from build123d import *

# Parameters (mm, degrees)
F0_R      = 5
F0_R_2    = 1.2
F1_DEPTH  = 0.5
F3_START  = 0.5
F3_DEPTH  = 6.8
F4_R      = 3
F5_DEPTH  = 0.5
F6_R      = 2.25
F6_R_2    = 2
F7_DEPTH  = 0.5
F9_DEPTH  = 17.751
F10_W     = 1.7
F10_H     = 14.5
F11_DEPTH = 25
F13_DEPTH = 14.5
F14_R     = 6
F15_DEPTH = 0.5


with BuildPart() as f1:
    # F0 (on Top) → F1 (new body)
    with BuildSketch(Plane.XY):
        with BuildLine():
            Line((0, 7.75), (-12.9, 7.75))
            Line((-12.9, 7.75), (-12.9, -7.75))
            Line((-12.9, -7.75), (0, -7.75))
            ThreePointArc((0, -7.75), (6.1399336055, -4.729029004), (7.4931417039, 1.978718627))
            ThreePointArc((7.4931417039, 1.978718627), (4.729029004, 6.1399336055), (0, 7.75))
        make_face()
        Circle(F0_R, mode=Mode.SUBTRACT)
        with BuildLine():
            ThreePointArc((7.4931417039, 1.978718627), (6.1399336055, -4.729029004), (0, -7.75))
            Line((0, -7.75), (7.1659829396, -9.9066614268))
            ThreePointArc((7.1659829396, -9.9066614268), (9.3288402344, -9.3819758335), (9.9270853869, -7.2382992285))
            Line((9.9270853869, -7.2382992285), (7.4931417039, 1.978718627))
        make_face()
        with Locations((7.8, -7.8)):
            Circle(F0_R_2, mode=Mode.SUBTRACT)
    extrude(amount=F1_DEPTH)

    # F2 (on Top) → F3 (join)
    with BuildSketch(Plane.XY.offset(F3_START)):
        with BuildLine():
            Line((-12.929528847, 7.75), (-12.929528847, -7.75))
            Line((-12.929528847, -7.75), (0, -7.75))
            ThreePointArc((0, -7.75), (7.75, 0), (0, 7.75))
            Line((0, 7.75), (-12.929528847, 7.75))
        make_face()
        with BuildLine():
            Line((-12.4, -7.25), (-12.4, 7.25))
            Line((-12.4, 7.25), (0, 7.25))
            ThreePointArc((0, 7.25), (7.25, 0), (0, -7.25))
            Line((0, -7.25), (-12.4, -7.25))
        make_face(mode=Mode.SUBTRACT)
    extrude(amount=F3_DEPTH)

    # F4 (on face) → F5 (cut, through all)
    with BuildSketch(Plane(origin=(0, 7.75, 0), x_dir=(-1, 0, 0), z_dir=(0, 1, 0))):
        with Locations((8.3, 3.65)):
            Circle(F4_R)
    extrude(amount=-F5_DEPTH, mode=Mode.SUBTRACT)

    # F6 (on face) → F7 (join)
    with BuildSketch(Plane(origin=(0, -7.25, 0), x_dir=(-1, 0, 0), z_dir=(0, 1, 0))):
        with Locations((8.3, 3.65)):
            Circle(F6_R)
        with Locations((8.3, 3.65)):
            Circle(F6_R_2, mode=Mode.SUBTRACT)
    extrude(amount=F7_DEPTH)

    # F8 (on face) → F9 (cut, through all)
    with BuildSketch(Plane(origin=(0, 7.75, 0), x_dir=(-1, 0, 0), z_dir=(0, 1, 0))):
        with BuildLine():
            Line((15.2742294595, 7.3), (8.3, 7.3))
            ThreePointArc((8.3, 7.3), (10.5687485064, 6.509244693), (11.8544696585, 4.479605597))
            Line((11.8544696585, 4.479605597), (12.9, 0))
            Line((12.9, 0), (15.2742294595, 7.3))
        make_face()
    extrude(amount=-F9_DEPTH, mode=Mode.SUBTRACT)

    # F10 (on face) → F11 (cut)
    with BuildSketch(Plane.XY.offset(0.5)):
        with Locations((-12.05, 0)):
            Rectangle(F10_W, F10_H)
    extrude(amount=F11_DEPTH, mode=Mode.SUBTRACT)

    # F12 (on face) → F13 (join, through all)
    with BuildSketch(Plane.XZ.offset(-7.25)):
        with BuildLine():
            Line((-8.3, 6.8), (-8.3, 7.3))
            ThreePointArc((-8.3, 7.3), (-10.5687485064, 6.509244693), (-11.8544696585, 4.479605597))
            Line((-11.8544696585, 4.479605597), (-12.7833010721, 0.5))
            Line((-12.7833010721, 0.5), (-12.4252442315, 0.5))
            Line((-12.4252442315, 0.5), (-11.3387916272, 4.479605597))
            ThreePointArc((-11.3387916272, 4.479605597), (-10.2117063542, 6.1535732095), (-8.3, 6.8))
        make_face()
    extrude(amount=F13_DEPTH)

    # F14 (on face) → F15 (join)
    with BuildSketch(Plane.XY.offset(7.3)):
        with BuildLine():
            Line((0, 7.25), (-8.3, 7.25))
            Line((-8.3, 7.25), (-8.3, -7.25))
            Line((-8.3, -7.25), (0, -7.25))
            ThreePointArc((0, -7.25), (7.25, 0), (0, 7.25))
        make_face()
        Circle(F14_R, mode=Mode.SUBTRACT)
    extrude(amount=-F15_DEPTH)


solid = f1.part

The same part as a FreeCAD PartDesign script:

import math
import FreeCAD as App
import Part
import Sketcher
Q = App.Units.Quantity


def add_polygon(sketch, points):
    """Adds a closed chain of lines whose ends are joined by coincident constraints."""
    first, n = sketch.GeometryCount, len(points)
    for a, b in zip(points, points[1:] + points[:1]):
        sketch.addGeometry(Part.LineSegment(App.Vector(*a, 0), App.Vector(*b, 0)), False)
    for i in range(n):
        sketch.addConstraint(Sketcher.Constraint("Coincident", first + i, 2, first + (i + 1) % n, 1))

doc = App.newDocument("Part")
params = doc.addObject("Spreadsheet::Sheet", "Params")
for row, (alias, value) in enumerate([
    ("sketch1_diameter", "10 mm"),
    ("sketch1_diameter2", "2.4 mm"),
    ("sketch1_radius", "2.2 mm"),
    ("sketch1_radius2", "7.75 mm"),
    ("sketch1_width", "12.9 mm"),
    ("pad1_length", "0.5 mm"),
    ("sketch2_radius", "7.75 mm"),
    ("sketch2_radius2", "7.25 mm"),
    ("sketch2_width", "12.4 mm"),
    ("pad2_length", "6.8 mm"),
    ("sketch3_diameter", "6 mm"),
    ("pocket1_length", "0.5 mm"),
    ("sketch4_diameter", "4 mm"),
    ("sketch4_diameter2", "4.5 mm"),
    ("pad3_length", "0.5 mm"),
    ("sketch5_radius", "3.65 mm"),
    ("sketch5_length", "4.6 mm"),
    ("sketch6_width", "1.7 mm"),
    ("sketch6_height", "14.5 mm"),
    ("pocket3_length", "25 mm"),
    ("sketch7_radius", "3.65 mm"),
    ("sketch7_radius2", "3.15 mm"),
    ("sketch8_diameter", "12 mm"),
    ("sketch8_radius", "7.25 mm"),
    ("sketch8_width", "8.3 mm"),
    ("pad5_length", "0.5 mm"),
], start=1):
    params.set(f"A{row}", alias)
    params.set(f"B{row}", "=" + value)
    params.setAlias(f"B{row}", alias)

body = doc.addObject("PartDesign::Body", "Body")

# Sketch on XY plane
sketch1 = doc.addObject("Sketcher::SketchObject", "Sketch")
body.addObject(sketch1)
sketch1.AttachmentSupport = (doc.XY_Plane, [""])
sketch1.MapMode = "FlatFace"
sketch1.addGeometry(Part.LineSegment(App.Vector(0, 7.75, 0), App.Vector(-12.9, 7.75, 0)), False)
sketch1.addGeometry(Part.LineSegment(App.Vector(-12.9, 7.75, 0), App.Vector(-12.9, -7.75, 0)), False)
sketch1.addGeometry(Part.LineSegment(App.Vector(-12.9, -7.75, 0), App.Vector(0, -7.75, 0)), False)
sketch1.addGeometry(Part.LineSegment(App.Vector(0, -7.75, 0), App.Vector(7.165983, -9.906661, 0)), False)
sketch1.addGeometry(Part.ArcOfCircle(Part.Circle(App.Vector(7.8, -7.8, 0), App.Vector(0, 0, 1), 2.2), math.radians(-106.749599), math.radians(14.792461)), False)
sketch1.addGeometry(Part.LineSegment(App.Vector(9.927085, -7.238299, 0), App.Vector(7.493142, 1.978719, 0)), False)
sketch1.addGeometry(Part.ArcOfCircle(Part.Circle(App.Vector(0, 0, 0), App.Vector(0, 0, 1), 7.75), math.radians(14.792461), math.radians(90)), False)
sketch1.addGeometry(Part.Circle(App.Vector(7.8, -7.8, 0), App.Vector(0, 0, 1), 1.2), False)
sketch1.addGeometry(Part.Circle(App.Vector(0, 0, 0), App.Vector(0, 0, 1), 5), False)
sketch1.addConstraint(Sketcher.Constraint("Coincident", 0, 2, 1, 1))
sketch1.addConstraint(Sketcher.Constraint("Coincident", 1, 2, 2, 1))
sketch1.addConstraint(Sketcher.Constraint("Coincident", 2, 2, 3, 1))
sketch1.addConstraint(Sketcher.Constraint("Tangent", 3, 2, 4, 1))
sketch1.addConstraint(Sketcher.Constraint("Tangent", 4, 2, 5, 1))
sketch1.addConstraint(Sketcher.Constraint("Tangent", 5, 2, 6, 1))
sketch1.addConstraint(Sketcher.Constraint("Tangent", 6, 2, 0, 1))
sketch1.addConstraint(Sketcher.Constraint("Horizontal", 0))
sketch1.addConstraint(Sketcher.Constraint("Vertical", 1))
sketch1.addConstraint(Sketcher.Constraint("Horizontal", 2))
sketch1.addConstraint(Sketcher.Constraint("Coincident", 6, 3, -1, 1))
sketch1.addConstraint(Sketcher.Constraint("Coincident", 8, 3, -1, 1))
sketch1.addConstraint(Sketcher.Constraint("Coincident", 7, 3, 4, 3))
sketch1.addConstraint(Sketcher.Constraint("Symmetric", 2, 2, 6, 2, -1, 1))
sketch1.addConstraint(Sketcher.Constraint("Diameter", 8, Q("10 mm")))
sketch1.addConstraint(Sketcher.Constraint("Diameter", 7, Q("2.4 mm")))
sketch1.addConstraint(Sketcher.Constraint("Radius", 4, Q("2.2 mm")))
sketch1.addConstraint(Sketcher.Constraint("Radius", 6, Q("7.75 mm")))
sketch1.addConstraint(Sketcher.Constraint("DistanceX", 0, 2, 0, 1, Q("12.9 mm")))
sketch1.addConstraint(Sketcher.Constraint("DistanceX", -1, 1, 4, 3, Q("7.8 mm")))
sketch1.addConstraint(Sketcher.Constraint("DistanceY", 4, 3, -1, 1, Q("7.8 mm")))
sketch1.setExpression("Constraints[14]", "Params.sketch1_diameter")
sketch1.setExpression("Constraints[15]", "Params.sketch1_diameter2")
sketch1.setExpression("Constraints[16]", "Params.sketch1_radius")
sketch1.setExpression("Constraints[17]", "Params.sketch1_radius2")
sketch1.setExpression("Constraints[18]", "Params.sketch1_width")
pad1 = doc.addObject("PartDesign::Pad", "Pad")
body.addObject(pad1)
pad1.Profile = sketch1
pad1.setExpression("Length", "Params.pad1_length")

# Sketch on XY plane
sketch2 = doc.addObject("Sketcher::SketchObject", "Sketch001")
body.addObject(sketch2)
sketch2.AttachmentSupport = (doc.XY_Plane, [""])
sketch2.MapMode = "FlatFace"
sketch2.AttachmentOffset = App.Placement(App.Vector(0, 0, 0.5), App.Rotation())
sketch2.addGeometry(Part.LineSegment(App.Vector(-12.929529, 7.75, 0), App.Vector(-12.929529, -7.75, 0)), False)
sketch2.addGeometry(Part.LineSegment(App.Vector(-12.929529, -7.75, 0), App.Vector(0, -7.75, 0)), False)
sketch2.addGeometry(Part.ArcOfCircle(Part.Circle(App.Vector(0, 0, 0), App.Vector(0, 0, 1), 7.75), math.radians(-90), math.radians(90)), False)
sketch2.addGeometry(Part.LineSegment(App.Vector(0, 7.75, 0), App.Vector(-12.929529, 7.75, 0)), False)
sketch2.addGeometry(Part.LineSegment(App.Vector(0, -7.25, 0), App.Vector(-12.4, -7.25, 0)), False)
sketch2.addGeometry(Part.LineSegment(App.Vector(-12.4, -7.25, 0), App.Vector(-12.4, 7.25, 0)), False)
sketch2.addGeometry(Part.LineSegment(App.Vector(-12.4, 7.25, 0), App.Vector(0, 7.25, 0)), False)
sketch2.addGeometry(Part.ArcOfCircle(Part.Circle(App.Vector(0, 0, 0), App.Vector(0, 0, 1), 7.25), math.radians(-90), math.radians(90)), False)
sketch2.addConstraint(Sketcher.Constraint("Coincident", 0, 2, 1, 1))
sketch2.addConstraint(Sketcher.Constraint("Tangent", 1, 2, 2, 1))
sketch2.addConstraint(Sketcher.Constraint("Tangent", 2, 2, 3, 1))
sketch2.addConstraint(Sketcher.Constraint("Coincident", 3, 2, 0, 1))
sketch2.addConstraint(Sketcher.Constraint("Coincident", 4, 2, 5, 1))
sketch2.addConstraint(Sketcher.Constraint("Coincident", 5, 2, 6, 1))
sketch2.addConstraint(Sketcher.Constraint("Tangent", 6, 2, 7, 2))
sketch2.addConstraint(Sketcher.Constraint("Tangent", 7, 1, 4, 1))
sketch2.addConstraint(Sketcher.Constraint("Vertical", 0))
sketch2.addConstraint(Sketcher.Constraint("Horizontal", 1))
sketch2.addConstraint(Sketcher.Constraint("Horizontal", 3))
sketch2.addConstraint(Sketcher.Constraint("Horizontal", 4))
sketch2.addConstraint(Sketcher.Constraint("Vertical", 5))
sketch2.addConstraint(Sketcher.Constraint("Horizontal", 6))
sketch2.addConstraint(Sketcher.Constraint("Coincident", 2, 3, -1, 1))
sketch2.addConstraint(Sketcher.Constraint("Coincident", 7, 3, -1, 1))
sketch2.addConstraint(Sketcher.Constraint("Radius", 2, Q("7.75 mm")))
sketch2.addConstraint(Sketcher.Constraint("Radius", 7, Q("7.25 mm")))
sketch2.addConstraint(Sketcher.Constraint("DistanceX", 4, 2, 4, 1, Q("12.4 mm")))
sketch2.addConstraint(Sketcher.Constraint("DistanceX", 1, 1, 1, 2, Q("12.929529 mm")))
sketch2.setExpression("Constraints[16]", "Params.sketch2_radius")
sketch2.setExpression("Constraints[17]", "Params.sketch2_radius2")
sketch2.setExpression("Constraints[18]", "Params.sketch2_width")
pad2 = doc.addObject("PartDesign::Pad", "Pad001")
body.addObject(pad2)
pad2.Profile = sketch2
pad2.setExpression("Length", "Params.pad2_length")

# Sketch on XZ plane
sketch3 = doc.addObject("Sketcher::SketchObject", "Sketch002")
body.addObject(sketch3)
sketch3.AttachmentSupport = (doc.XZ_Plane, [""])
sketch3.MapMode = "FlatFace"
sketch3.AttachmentOffset = App.Placement(App.Vector(0, 0, -7.75), App.Rotation())
sketch3.addGeometry(Part.Circle(App.Vector(-8.3, 3.65, 0), App.Vector(0, 0, 1), 3), False)
sketch3.addConstraint(Sketcher.Constraint("Diameter", 0, Q("6 mm")))
sketch3.addConstraint(Sketcher.Constraint("DistanceX", 0, 3, -1, 1, Q("8.3 mm")))
sketch3.addConstraint(Sketcher.Constraint("DistanceY", -1, 1, 0, 3, Q("3.65 mm")))
sketch3.setExpression("Constraints[0]", "Params.sketch3_diameter")
pocket1 = doc.addObject("PartDesign::Pocket", "Pocket")
body.addObject(pocket1)
pocket1.Profile = sketch3
pocket1.setExpression("Length", "Params.pocket1_length")
pocket1.Reversed = True

# Sketch on XZ plane
sketch4 = doc.addObject("Sketcher::SketchObject", "Sketch003")
body.addObject(sketch4)
sketch4.AttachmentSupport = (doc.XZ_Plane, [""])
sketch4.MapMode = "FlatFace"
sketch4.AttachmentOffset = App.Placement(App.Vector(0, 0, 7.25), App.Rotation())
sketch4.addGeometry(Part.Circle(App.Vector(-8.3, 3.65, 0), App.Vector(0, 0, 1), 2.25), False)
sketch4.addGeometry(Part.Circle(App.Vector(-8.3, 3.65, 0), App.Vector(0, 0, 1), 2), False)
sketch4.addConstraint(Sketcher.Constraint("Coincident", 1, 3, 0, 3))
sketch4.addConstraint(Sketcher.Constraint("Diameter", 1, Q("4 mm")))
sketch4.addConstraint(Sketcher.Constraint("Diameter", 0, Q("4.5 mm")))
sketch4.addConstraint(Sketcher.Constraint("DistanceX", 0, 3, -1, 1, Q("8.3 mm")))
sketch4.addConstraint(Sketcher.Constraint("DistanceY", -1, 1, 0, 3, Q("3.65 mm")))
sketch4.setExpression("Constraints[1]", "Params.sketch4_diameter")
sketch4.setExpression("Constraints[2]", "Params.sketch4_diameter2")
pad3 = doc.addObject("PartDesign::Pad", "Pad002")
body.addObject(pad3)
pad3.Profile = sketch4
pad3.setExpression("Length", "Params.pad3_length")
pad3.Reversed = True

# Sketch on XZ plane
sketch5 = doc.addObject("Sketcher::SketchObject", "Sketch004")
body.addObject(sketch5)
sketch5.AttachmentSupport = (doc.XZ_Plane, [""])
sketch5.MapMode = "FlatFace"
sketch5.AttachmentOffset = App.Placement(App.Vector(0, 0, -7.75), App.Rotation())
sketch5.addGeometry(Part.LineSegment(App.Vector(-15.274229, 7.3, 0), App.Vector(-8.3, 7.3, 0)), False)
sketch5.addGeometry(Part.ArcOfCircle(Part.Circle(App.Vector(-8.3, 3.65, 0), App.Vector(0, 0, 1), 3.65), math.radians(90), math.radians(166.862472)), False)
sketch5.addGeometry(Part.LineSegment(App.Vector(-11.85447, 4.479606, 0), App.Vector(-12.9, 0, 0)), False)
sketch5.addGeometry(Part.LineSegment(App.Vector(-12.9, 0, 0), App.Vector(-15.274229, 7.3, 0)), False)
sketch5.addConstraint(Sketcher.Constraint("Tangent", 0, 2, 1, 1))
sketch5.addConstraint(Sketcher.Constraint("Tangent", 1, 2, 2, 1))
sketch5.addConstraint(Sketcher.Constraint("Coincident", 2, 2, 3, 1))
sketch5.addConstraint(Sketcher.Constraint("Coincident", 3, 2, 0, 1))
sketch5.addConstraint(Sketcher.Constraint("Horizontal", 0))
sketch5.addConstraint(Sketcher.Constraint("PointOnObject", 2, 2, -1))
sketch5.addConstraint(Sketcher.Constraint("Radius", 1, Q("3.65 mm")))
sketch5.addConstraint(Sketcher.Constraint("Distance", 2, Q("4.6 mm")))
sketch5.addConstraint(Sketcher.Constraint("DistanceX", 1, 3, -1, 1, Q("8.3 mm")))
sketch5.addConstraint(Sketcher.Constraint("DistanceY", -1, 1, 0, 2, Q("7.3 mm")))
sketch5.addConstraint(Sketcher.Constraint("DistanceX", 0, 1, 0, 2, Q("6.974229 mm")))
sketch5.setExpression("Constraints[6]", "Params.sketch5_radius")
sketch5.setExpression("Constraints[7]", "Params.sketch5_length")
pocket2 = doc.addObject("PartDesign::Pocket", "Pocket001")
body.addObject(pocket2)
pocket2.Profile = sketch5
pocket2.Type = "ThroughAll"
pocket2.Reversed = True

# Sketch on XY plane
sketch6 = doc.addObject("Sketcher::SketchObject", "Sketch005")
body.addObject(sketch6)
sketch6.AttachmentSupport = (doc.XY_Plane, [""])
sketch6.MapMode = "FlatFace"
sketch6.AttachmentOffset = App.Placement(App.Vector(0, 0, 0.5), App.Rotation())
add_polygon(sketch6, [(-12.9, 7.25), (-12.9, -7.25), (-11.2, -7.25), (-11.2, 7.25)])  # lines 0-3
sketch6.addConstraint(Sketcher.Constraint("Vertical", 0))
sketch6.addConstraint(Sketcher.Constraint("Horizontal", 1))
sketch6.addConstraint(Sketcher.Constraint("Vertical", 2))
sketch6.addConstraint(Sketcher.Constraint("Horizontal", 3))
sketch6.addConstraint(Sketcher.Constraint("DistanceX", 1, 1, 1, 2, Q("1.7 mm")))
sketch6.addConstraint(Sketcher.Constraint("DistanceY", 0, 2, 0, 1, Q("14.5 mm")))
sketch6.addConstraint(Sketcher.Constraint("DistanceX", 0, 2, -1, 1, Q("12.9 mm")))
sketch6.addConstraint(Sketcher.Constraint("DistanceY", 0, 2, -1, 1, Q("7.25 mm")))
sketch6.setExpression("Constraints[8]", "Params.sketch6_width")
sketch6.setExpression("Constraints[9]", "Params.sketch6_height")
pocket3 = doc.addObject("PartDesign::Pocket", "Pocket002")
body.addObject(pocket3)
pocket3.Profile = sketch6
pocket3.setExpression("Length", "Params.pocket3_length")
pocket3.Reversed = True

# Sketch on XZ plane
sketch7 = doc.addObject("Sketcher::SketchObject", "Sketch006")
body.addObject(sketch7)
sketch7.AttachmentSupport = (doc.XZ_Plane, [""])
sketch7.MapMode = "FlatFace"
sketch7.AttachmentOffset = App.Placement(App.Vector(0, 0, -7.25), App.Rotation())
sketch7.addGeometry(Part.LineSegment(App.Vector(-8.3, 6.8, 0), App.Vector(-8.3, 7.3, 0)), False)
sketch7.addGeometry(Part.ArcOfCircle(Part.Circle(App.Vector(-8.3, 3.65, 0), App.Vector(0, 0, 1), 3.65), math.radians(90), math.radians(166.862472)), False)
sketch7.addGeometry(Part.LineSegment(App.Vector(-11.85447, 4.479606, 0), App.Vector(-12.783301, 0.5, 0)), False)
sketch7.addGeometry(Part.LineSegment(App.Vector(-12.783301, 0.5, 0), App.Vector(-12.425244, 0.5, 0)), False)
sketch7.addGeometry(Part.LineSegment(App.Vector(-12.425244, 0.5, 0), App.Vector(-11.338792, 4.479606, 0)), False)
sketch7.addGeometry(Part.ArcOfCircle(Part.Circle(App.Vector(-8.3, 3.65, 0), App.Vector(0, 0, 1), 3.15), math.radians(90), math.radians(164.730066)), False)
sketch7.addConstraint(Sketcher.Constraint("Coincident", 0, 2, 1, 1))
sketch7.addConstraint(Sketcher.Constraint("Tangent", 1, 2, 2, 1))
sketch7.addConstraint(Sketcher.Constraint("Coincident", 2, 2, 3, 1))
sketch7.addConstraint(Sketcher.Constraint("Coincident", 3, 2, 4, 1))
sketch7.addConstraint(Sketcher.Constraint("Tangent", 4, 2, 5, 2))
sketch7.addConstraint(Sketcher.Constraint("Coincident", 5, 1, 0, 1))
sketch7.addConstraint(Sketcher.Constraint("Vertical", 0))
sketch7.addConstraint(Sketcher.Constraint("Horizontal", 3))
sketch7.addConstraint(Sketcher.Constraint("Coincident", 5, 3, 1, 3))
sketch7.addConstraint(Sketcher.Constraint("Horizontal", 1, 2, 4, 2))
sketch7.addConstraint(Sketcher.Constraint("Vertical", 5, 3, 0, 2))
sketch7.addConstraint(Sketcher.Constraint("Radius", 1, Q("3.65 mm")))
sketch7.addConstraint(Sketcher.Constraint("Radius", 5, Q("3.15 mm")))
sketch7.addConstraint(Sketcher.Constraint("DistanceX", 1, 3, -1, 1, Q("8.3 mm")))
sketch7.addConstraint(Sketcher.Constraint("DistanceY", -1, 1, 0, 2, Q("7.3 mm")))
sketch7.addConstraint(Sketcher.Constraint("DistanceY", -1, 1, 2, 2, Q("0.5 mm")))
sketch7.addConstraint(Sketcher.Constraint("DistanceX", 2, 2, -1, 1, Q("12.783301 mm")))
sketch7.setExpression("Constraints[11]", "Params.sketch7_radius")
sketch7.setExpression("Constraints[12]", "Params.sketch7_radius2")
pad4 = doc.addObject("PartDesign::Pad", "Pad003")
body.addObject(pad4)
pad4.Profile = sketch7
pad4.Type = "UpToLast"

# Sketch on XY plane
sketch8 = doc.addObject("Sketcher::SketchObject", "Sketch007")
body.addObject(sketch8)
sketch8.AttachmentSupport = (doc.XY_Plane, [""])
sketch8.MapMode = "FlatFace"
sketch8.AttachmentOffset = App.Placement(App.Vector(0, 0, 7.3), App.Rotation())
sketch8.addGeometry(Part.LineSegment(App.Vector(0, 7.25, 0), App.Vector(-8.3, 7.25, 0)), False)
sketch8.addGeometry(Part.LineSegment(App.Vector(-8.3, 7.25, 0), App.Vector(-8.3, -7.25, 0)), False)
sketch8.addGeometry(Part.LineSegment(App.Vector(-8.3, -7.25, 0), App.Vector(0, -7.25, 0)), False)
sketch8.addGeometry(Part.ArcOfCircle(Part.Circle(App.Vector(0, 0, 0), App.Vector(0, 0, 1), 7.25), math.radians(-90), math.radians(90)), False)
sketch8.addGeometry(Part.Circle(App.Vector(0, 0, 0), App.Vector(0, 0, 1), 6), False)
sketch8.addConstraint(Sketcher.Constraint("Coincident", 0, 2, 1, 1))
sketch8.addConstraint(Sketcher.Constraint("Coincident", 1, 2, 2, 1))
sketch8.addConstraint(Sketcher.Constraint("Tangent", 2, 2, 3, 1))
sketch8.addConstraint(Sketcher.Constraint("Tangent", 3, 2, 0, 1))
sketch8.addConstraint(Sketcher.Constraint("Horizontal", 0))
sketch8.addConstraint(Sketcher.Constraint("Vertical", 1))
sketch8.addConstraint(Sketcher.Constraint("Horizontal", 2))
sketch8.addConstraint(Sketcher.Constraint("Coincident", 3, 3, -1, 1))
sketch8.addConstraint(Sketcher.Constraint("Coincident", 4, 3, -1, 1))
sketch8.addConstraint(Sketcher.Constraint("Diameter", 4, Q("12 mm")))
sketch8.addConstraint(Sketcher.Constraint("Radius", 3, Q("7.25 mm")))
sketch8.addConstraint(Sketcher.Constraint("DistanceX", 0, 2, 0, 1, Q("8.3 mm")))
sketch8.setExpression("Constraints[9]", "Params.sketch8_diameter")
sketch8.setExpression("Constraints[10]", "Params.sketch8_radius")
sketch8.setExpression("Constraints[11]", "Params.sketch8_width")
pad5 = doc.addObject("PartDesign::Pad", "Pad004")
body.addObject(pad5)
pad5.Profile = sketch8
pad5.setExpression("Length", "Params.pad5_length")
pad5.Reversed = True

doc.recompute()
